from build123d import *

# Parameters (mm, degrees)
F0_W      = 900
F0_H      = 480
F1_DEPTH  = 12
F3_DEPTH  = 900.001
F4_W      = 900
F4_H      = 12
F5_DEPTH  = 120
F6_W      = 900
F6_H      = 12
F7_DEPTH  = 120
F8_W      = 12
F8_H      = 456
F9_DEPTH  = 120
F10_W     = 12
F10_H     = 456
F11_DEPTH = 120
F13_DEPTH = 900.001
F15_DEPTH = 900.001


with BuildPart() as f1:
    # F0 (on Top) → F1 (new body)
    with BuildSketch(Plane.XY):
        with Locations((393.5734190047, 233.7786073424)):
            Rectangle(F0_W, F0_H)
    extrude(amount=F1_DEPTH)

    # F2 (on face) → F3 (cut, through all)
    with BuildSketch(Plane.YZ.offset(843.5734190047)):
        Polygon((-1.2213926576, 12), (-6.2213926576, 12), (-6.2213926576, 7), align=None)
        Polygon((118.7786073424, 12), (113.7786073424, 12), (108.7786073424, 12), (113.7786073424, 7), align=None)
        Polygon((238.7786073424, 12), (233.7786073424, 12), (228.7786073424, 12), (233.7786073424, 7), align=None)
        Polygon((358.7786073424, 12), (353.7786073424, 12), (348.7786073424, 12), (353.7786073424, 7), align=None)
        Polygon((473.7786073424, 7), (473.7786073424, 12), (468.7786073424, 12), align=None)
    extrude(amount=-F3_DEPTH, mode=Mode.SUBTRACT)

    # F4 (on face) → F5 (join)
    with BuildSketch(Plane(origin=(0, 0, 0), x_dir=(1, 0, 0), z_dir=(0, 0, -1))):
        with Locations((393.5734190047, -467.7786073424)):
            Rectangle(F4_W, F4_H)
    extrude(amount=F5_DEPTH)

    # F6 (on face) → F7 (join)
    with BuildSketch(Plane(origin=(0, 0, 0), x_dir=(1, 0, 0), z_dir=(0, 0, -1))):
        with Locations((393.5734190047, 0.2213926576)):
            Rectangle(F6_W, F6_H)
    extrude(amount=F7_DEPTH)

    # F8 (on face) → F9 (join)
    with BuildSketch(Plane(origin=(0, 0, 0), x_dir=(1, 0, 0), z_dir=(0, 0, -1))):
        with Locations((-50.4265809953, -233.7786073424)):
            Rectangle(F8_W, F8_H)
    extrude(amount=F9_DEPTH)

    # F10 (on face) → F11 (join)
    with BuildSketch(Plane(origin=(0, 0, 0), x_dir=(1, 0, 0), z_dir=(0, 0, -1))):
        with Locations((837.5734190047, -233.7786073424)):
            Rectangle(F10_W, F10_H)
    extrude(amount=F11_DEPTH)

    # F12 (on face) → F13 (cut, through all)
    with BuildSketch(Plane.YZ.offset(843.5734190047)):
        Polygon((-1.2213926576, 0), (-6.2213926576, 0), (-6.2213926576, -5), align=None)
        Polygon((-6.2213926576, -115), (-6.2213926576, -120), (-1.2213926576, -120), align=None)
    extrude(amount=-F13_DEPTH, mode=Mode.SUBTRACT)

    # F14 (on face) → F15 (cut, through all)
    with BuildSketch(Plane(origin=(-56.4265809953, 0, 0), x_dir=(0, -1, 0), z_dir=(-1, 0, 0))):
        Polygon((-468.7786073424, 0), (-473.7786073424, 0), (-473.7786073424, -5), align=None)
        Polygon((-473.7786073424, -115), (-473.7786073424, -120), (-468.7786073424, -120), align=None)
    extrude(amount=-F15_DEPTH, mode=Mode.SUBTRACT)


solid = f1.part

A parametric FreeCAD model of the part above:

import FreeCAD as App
import Part
import Sketcher

V = App.Vector
Q = App.Units.Quantity

doc = App.newDocument("Part")
body = doc.addObject("PartDesign::Body", "Body")

sketch1 = doc.addObject("Sketcher::SketchObject", "Sketch")
body.addObject(sketch1)
sketch1.AttachmentSupport = (doc.XY_Plane, [""])
sketch1.MapMode = "FlatFace"
sketch1.addGeometry(Part.LineSegment(V(-56, 474, 0), V(-56, -6, 0)), False)
sketch1.addGeometry(Part.LineSegment(V(-56, -6, 0), V(844, -6, 0)), False)
sketch1.addGeometry(Part.LineSegment(V(844, -6, 0), V(844, 474, 0)), False)
sketch1.addGeometry(Part.LineSegment(V(844, 474, 0), V(-56, 474, 0)), False)
sketch1.addConstraint(Sketcher.Constraint("Coincident", 0, 2, 1, 1))
sketch1.addConstraint(Sketcher.Constraint("Coincident", 1, 2, 2, 1))
sketch1.addConstraint(Sketcher.Constraint("Coincident", 2, 2, 3, 1))
sketch1.addConstraint(Sketcher.Constraint("Coincident", 3, 2, 0, 1))
sketch1.addConstraint(Sketcher.Constraint("Vertical", 0))
sketch1.addConstraint(Sketcher.Constraint("Horizontal", 1))
sketch1.addConstraint(Sketcher.Constraint("Vertical", 2))
sketch1.addConstraint(Sketcher.Constraint("Horizontal", 3))
sketch1.addConstraint(Sketcher.Constraint("DistanceX", 1, 1, 1, 2, Q("900 mm")))
sketch1.addConstraint(Sketcher.Constraint("DistanceY", 0, 2, 0, 1, Q("480 mm")))
sketch1.addConstraint(Sketcher.Constraint("DistanceX", 0, 2, -1, 1, Q("56.426581 mm")))
sketch1.addConstraint(Sketcher.Constraint("DistanceY", 0, 2, -1, 1, Q("6.221393 mm")))
pad1 = doc.addObject("PartDesign::Pad", "Pad")
body.addObject(pad1)
pad1.Profile = sketch1
pad1.Length = 12

sketch2 = doc.addObject("Sketcher::SketchObject", "Sketch001")
body.addObject(sketch2)
sketch2.AttachmentSupport = (doc.YZ_Plane, [""])
sketch2.MapMode = "FlatFace"
sketch2.AttachmentOffset = App.Placement(V(0, 0, 843.573419), App.Rotation())
sketch2.addGeometry(Part.LineSegment(V(-1, 12, 0), V(-6, 12, 0)), False)
sketch2.addGeometry(Part.LineSegment(V(-6, 12, 0), V(-6, 7, 0)), False)
sketch2.addGeometry(Part.LineSegment(V(-6, 7, 0), V(-1, 12, 0)), False)
sketch2.addGeometry(Part.LineSegment(V(119, 12, 0), V(109, 12, 0)), False)
sketch2.addGeometry(Part.LineSegment(V(109, 12, 0), V(114, 7, 0)), False)
sketch2.addGeometry(Part.LineSegment(V(114, 7, 0), V(119, 12, 0)), False)
sketch2.addGeometry(Part.LineSegment(V(239, 12, 0), V(229, 12, 0)), False)
sketch2.addGeometry(Part.LineSegment(V(229, 12, 0), V(234, 7, 0)), False)
sketch2.addGeometry(Part.LineSegment(V(234, 7, 0), V(239, 12, 0)), False)
sketch2.addGeometry(Part.LineSegment(V(359, 12, 0), V(349, 12, 0)), False)
sketch2.addGeometry(Part.LineSegment(V(349, 12, 0), V(354, 7, 0)), False)
sketch2.addGeometry(Part.LineSegment(V(354, 7, 0), V(359, 12, 0)), False)
sketch2.addGeometry(Part.LineSegment(V(474, 7, 0), V(474, 12, 0)), False)
sketch2.addGeometry(Part.LineSegment(V(474, 12, 0), V(469, 12, 0)), False)
sketch2.addGeometry(Part.LineSegment(V(469, 12, 0), V(474, 7, 0)), False)
sketch2.addConstraint(Sketcher.Constraint("Coincident", 0, 2, 1, 1))
sketch2.addConstraint(Sketcher.Constraint("Coincident", 1, 2, 2, 1))
sketch2.addConstraint(Sketcher.Constraint("Coincident", 2, 2, 0, 1))
sketch2.addConstraint(Sketcher.Constraint("Coincident", 3, 2, 4, 1))
sketch2.addConstraint(Sketcher.Constraint("Coincident", 4, 2, 5, 1))
sketch2.addConstraint(Sketcher.Constraint("Coincident", 5, 2, 3, 1))
sketch2.addConstraint(Sketcher.Constraint("Coincident", 6, 2, 7, 1))
sketch2.addConstraint(Sketcher.Constraint("Coincident", 7, 2, 8, 1))
sketch2.addConstraint(Sketcher.Constraint("Coincident", 8, 2, 6, 1))
sketch2.addConstraint(Sketcher.Constraint("Coincident", 9, 2, 10, 1))
sketch2.addConstraint(Sketcher.Constraint("Coincident", 10, 2, 11, 1))
sketch2.addConstraint(Sketcher.Constraint("Coincident", 11, 2, 9, 1))
sketch2.addConstraint(Sketcher.Constraint("Coincident", 12, 2, 13, 1))
sketch2.addConstraint(Sketcher.Constraint("Coincident", 13, 2, 14, 1))
sketch2.addConstraint(Sketcher.Constraint("Coincident", 14, 2, 12, 1))
sketch2.addConstraint(Sketcher.Constraint("Horizontal", 0))
sketch2.addConstraint(Sketcher.Constraint("Vertical", 1))
sketch2.addConstraint(Sketcher.Constraint("Horizontal", 3))
sketch2.addConstraint(Sketcher.Constraint("Horizontal", 6))
sketch2.addConstraint(Sketcher.Constraint("Horizontal", 9))
sketch2.addConstraint(Sketcher.Constraint("Vertical", 12))
sketch2.addConstraint(Sketcher.Constraint("Horizontal", 13))
sketch2.addConstraint(Sketcher.Constraint("Perpendicular", 2, 4))
sketch2.addConstraint(Sketcher.Constraint("Perpendicular", 4, 5))
sketch2.addConstraint(Sketcher.Constraint("Perpendicular", 5, 7))
sketch2.addConstraint(Sketcher.Constraint("Perpendicular", 7, 8))
sketch2.addConstraint(Sketcher.Constraint("Perpendicular", 8, 10))
sketch2.addConstraint(Sketcher.Constraint("Perpendicular", 10, 11))
sketch2.addConstraint(Sketcher.Constraint("Perpendicular", 11, 14))
sketch2.addConstraint(Sketcher.Constraint("Horizontal", 2, 2, 3, 2))
sketch2.addConstraint(Sketcher.Constraint("Horizontal", 1, 2, 4, 2))
sketch2.addConstraint(Sketcher.Constraint("Horizontal", 5, 2, 6, 2))
sketch2.addConstraint(Sketcher.Constraint("Horizontal", 4, 2, 7, 2))
sketch2.addConstraint(Sketcher.Constraint("Horizontal", 8, 2, 9, 2))
sketch2.addConstraint(Sketcher.Constraint("Horizontal", 7, 2, 10, 2))
sketch2.addConstraint(Sketcher.Constraint("Horizontal", 11, 2, 12, 2))
sketch2.addConstraint(Sketcher.Constraint("Horizontal", 10, 2, 14, 2))
sketch2.addConstraint(Sketcher.Constraint("Equal", 0, 13))
sketch2.addConstraint(Sketcher.Constraint("DistanceX", 0, 2, 0, 1, Q("5 mm")))
sketch2.addConstraint(Sketcher.Constraint("DistanceY", -1, 1, 0, 2, Q("12 mm")))
sketch2.addConstraint(Sketcher.Constraint("DistanceX", 2, 2, 3, 2, Q("110 mm")))
sketch2.addConstraint(Sketcher.Constraint("DistanceX", 5, 2, 6, 2, Q("110 mm")))
sketch2.addConstraint(Sketcher.Constraint("DistanceX", 8, 2, 9, 2, Q("110 mm")))
sketch2.addConstraint(Sketcher.Constraint("DistanceX", 11, 2, 12, 2, Q("115 mm")))
sketch2.addConstraint(Sketcher.Constraint("DistanceX", 0, 2, -1, 1, Q("6.221393 mm")))
pocket1 = doc.addObject("PartDesign::Pocket", "Pocket")
body.addObject(pocket1)
pocket1.Profile = sketch2
pocket1.Type = "ThroughAll"

sketch3 = doc.addObject("Sketcher::SketchObject", "Sketch002")
body.addObject(sketch3)
sketch3.AttachmentSupport = (doc.XY_Plane, [""])
sketch3.MapMode = "FlatFace"
sketch3.addGeometry(Part.LineSegment(V(-56, 462, 0), V(-56, 474, 0)), False)
sketch3.addGeometry(Part.LineSegment(V(-56, 474, 0), V(844, 474, 0)), False)
sketch3.addGeometry(Part.LineSegment(V(844, 474, 0), V(844, 462, 0)), False)
sketch3.addGeometry(Part.LineSegment(V(844, 462, 0), V(-56, 462, 0)), False)
sketch3.addConstraint(Sketcher.Constraint("Coincident", 0, 2, 1, 1))
sketch3.addConstraint(Sketcher.Constraint("Coincident", 1, 2, 2, 1))
sketch3.addConstraint(Sketcher.Constraint("Coincident", 2, 2, 3, 1))
sketch3.addConstraint(Sketcher.Constraint("Coincident", 3, 2, 0, 1))
sketch3.addConstraint(Sketcher.Constraint("Vertical", 0))
sketch3.addConstraint(Sketcher.Constraint("Horizontal", 1))
sketch3.addConstraint(Sketcher.Constraint("Vertical", 2))
sketch3.addConstraint(Sketcher.Constraint("Horizontal", 3))
sketch3.addConstraint(Sketcher.Constraint("DistanceX", 1, 1, 1, 2, Q("900 mm")))
sketch3.addConstraint(Sketcher.Constraint("DistanceY", 0, 1, 0, 2, Q("12 mm")))
sketch3.addConstraint(Sketcher.Constraint("DistanceX", 0, 2, -1, 1, Q("56.426581 mm")))
sketch3.addConstraint(Sketcher.Constraint("DistanceY", -1, 1, 0, 2, Q("473.778607 mm")))
pad2 = doc.addObject("PartDesign::Pad", "Pad001")
body.addObject(pad2)
pad2.Profile = sketch3
pad2.Length = 120
pad2.Reversed = True

sketch4 = doc.addObject("Sketcher::SketchObject", "Sketch003")
body.addObject(sketch4)
sketch4.AttachmentSupport = (doc.XY_Plane, [""])
sketch4.MapMode = "FlatFace"
sketch4.addGeometry(Part.LineSegment(V(-56, -6, 0), V(-56, 6, 0)), False)
sketch4.addGeometry(Part.LineSegment(V(-56, 6, 0), V(844, 6, 0)), False)
sketch4.addGeometry(Part.LineSegment(V(844, 6, 0), V(844, -6, 0)), False)
sketch4.addGeometry(Part.LineSegment(V(844, -6, 0), V(-56, -6, 0)), False)
sketch4.addConstraint(Sketcher.Constraint("Coincident", 0, 2, 1, 1))
sketch4.addConstraint(Sketcher.Constraint("Coincident", 1, 2, 2, 1))
sketch4.addConstraint(Sketcher.Constraint("Coincident", 2, 2, 3, 1))
sketch4.addConstraint(Sketcher.Constraint("Coincident", 3, 2, 0, 1))
sketch4.addConstraint(Sketcher.Constraint("Vertical", 0))
sketch4.addConstraint(Sketcher.Constraint("Horizontal", 1))
sketch4.addConstraint(Sketcher.Constraint("Vertical", 2))
sketch4.addConstraint(Sketcher.Constraint("Horizontal", 3))
sketch4.addConstraint(Sketcher.Constraint("DistanceX", 1, 1, 1, 2, Q("900 mm")))
sketch4.addConstraint(Sketcher.Constraint("DistanceY", 0, 1, 0, 2, Q("12 mm")))
sketch4.addConstraint(Sketcher.Constraint("DistanceX", 0, 2, -1, 1, Q("56.426581 mm")))
sketch4.addConstraint(Sketcher.Constraint("DistanceY", -1, 1, 0, 2, Q("5.778607 mm")))
pad3 = doc.addObject("PartDesign::Pad", "Pad002")
body.addObject(pad3)
pad3.Profile = sketch4
pad3.Length = 120
pad3.Reversed = True

sketch5 = doc.addObject("Sketcher::SketchObject", "Sketch004")
body.addObject(sketch5)
sketch5.AttachmentSupport = (doc.XY_Plane, [""])
sketch5.MapMode = "FlatFace"
sketch5.addGeometry(Part.LineSegment(V(-56, 6, 0), V(-56, 462, 0)), False)
sketch5.addGeometry(Part.LineSegment(V(-56, 462, 0), V(-44, 462, 0)), False)
sketch5.addGeometry(Part.LineSegment(V(-44, 462, 0), V(-44, 6, 0)), False)
sketch5.addGeometry(Part.LineSegment(V(-44, 6, 0), V(-56, 6, 0)), False)
sketch5.addConstraint(Sketcher.Constraint("Coincident", 0, 2, 1, 1))
sketch5.addConstraint(Sketcher.Constraint("Coincident", 1, 2, 2, 1))
sketch5.addConstraint(Sketcher.Constraint("Coincident", 2, 2, 3, 1))
sketch5.addConstraint(Sketcher.Constraint("Coincident", 3, 2, 0, 1))
sketch5.addConstraint(Sketcher.Constraint("Vertical", 0))
sketch5.addConstraint(Sketcher.Constraint("Horizontal", 1))
sketch5.addConstraint(Sketcher.Constraint("Vertical", 2))
sketch5.addConstraint(Sketcher.Constraint("Horizontal", 3))
sketch5.addConstraint(Sketcher.Constraint("DistanceX", 1, 1, 1, 2, Q("12 mm")))
sketch5.addConstraint(Sketcher.Constraint("DistanceY", 0, 1, 0, 2, Q("456 mm")))
sketch5.addConstraint(Sketcher.Constraint("DistanceX", 0, 2, -1, 1, Q("56.426581 mm")))
sketch5.addConstraint(Sketcher.Constraint("DistanceY", -1, 1, 0, 2, Q("461.778607 mm")))
pad4 = doc.addObject("PartDesign::Pad", "Pad003")
body.addObject(pad4)
pad4.Profile = sketch5
pad4.Length = 120
pad4.Reversed = True

sketch6 = doc.addObject("Sketcher::SketchObject", "Sketch005")
body.addObject(sketch6)
sketch6.AttachmentSupport = (doc.XY_Plane, [""])
sketch6.MapMode = "FlatFace"
sketch6.addGeometry(Part.LineSegment(V(832, 6, 0), V(832, 462, 0)), False)
sketch6.addGeometry(Part.LineSegment(V(832, 462, 0), V(844, 462, 0)), False)
sketch6.addGeometry(Part.LineSegment(V(844, 462, 0), V(844, 6, 0)), False)
sketch6.addGeometry(Part.LineSegment(V(844, 6, 0), V(832, 6, 0)), False)
sketch6.addConstraint(Sketcher.Constraint("Coincident", 0, 2, 1, 1))
sketch6.addConstraint(Sketcher.Constraint("Coincident", 1, 2, 2, 1))
sketch6.addConstraint(Sketcher.Constraint("Coincident", 2, 2, 3, 1))
sketch6.addConstraint(Sketcher.Constraint("Coincident", 3, 2, 0, 1))
sketch6.addConstraint(Sketcher.Constraint("Vertical", 0))
sketch6.addConstraint(Sketcher.Constraint("Horizontal", 1))
sketch6.addConstraint(Sketcher.Constraint("Vertical", 2))
sketch6.addConstraint(Sketcher.Constraint("Horizontal", 3))
sketch6.addConstraint(Sketcher.Constraint("DistanceX", 1, 1, 1, 2, Q("12 mm")))
sketch6.addConstraint(Sketcher.Constraint("DistanceY", 0, 1, 0, 2, Q("456 mm")))
sketch6.addConstraint(Sketcher.Constraint("DistanceX", -1, 1, 0, 2, Q("831.573419 mm")))
sketch6.addConstraint(Sketcher.Constraint("DistanceY", -1, 1, 0, 2, Q("461.778607 mm")))
pad5 = doc.addObject("PartDesign::Pad", "Pad004")
body.addObject(pad5)
pad5.Profile = sketch6
pad5.Length = 120
pad5.Reversed = True

sketch7 = doc.addObject("Sketcher::SketchObject", "Sketch006")
body.addObject(sketch7)
sketch7.AttachmentSupport = (doc.YZ_Plane, [""])
sketch7.MapMode = "FlatFace"
sketch7.AttachmentOffset = App.Placement(V(0, 0, 843.573419), App.Rotation())
sketch7.addGeometry(Part.LineSegment(V(-1, 0, 0), V(-6, 0, 0)), False)
sketch7.addGeometry(Part.LineSegment(V(-6, 0, 0), V(-6, -5, 0)), False)
sketch7.addGeometry(Part.LineSegment(V(-6, -5, 0), V(-1, 0, 0)), False)
sketch7.addGeometry(Part.LineSegment(V(-6, -115, 0), V(-6, -120, 0)), False)
sketch7.addGeometry(Part.LineSegment(V(-6, -120, 0), V(-1, -120, 0)), False)
sketch7.addGeometry(Part.LineSegment(V(-1, -120, 0), V(-6, -115, 0)), False)
sketch7.addConstraint(Sketcher.Constraint("Coincident", 0, 2, 1, 1))
sketch7.addConstraint(Sketcher.Constraint("Coincident", 1, 2, 2, 1))
sketch7.addConstraint(Sketcher.Constraint("Coincident", 2, 2, 0, 1))
sketch7.addConstraint(Sketcher.Constraint("Coincident", 3, 2, 4, 1))
sketch7.addConstraint(Sketcher.Constraint("Coincident", 4, 2, 5, 1))
sketch7.addConstraint(Sketcher.Constraint("Coincident", 5, 2, 3, 1))
sketch7.addConstraint(Sketcher.Constraint("Horizontal", 0))
sketch7.addConstraint(Sketcher.Constraint("Vertical", 1))
sketch7.addConstraint(Sketcher.Constraint("Vertical", 3))
sketch7.addConstraint(Sketcher.Constraint("Horizontal", 4))
sketch7.addConstraint(Sketcher.Constraint("PointOnObject", 0, 2, -1))
sketch7.addConstraint(Sketcher.Constraint("Perpendicular", 2, 5))
sketch7.addConstraint(Sketcher.Constraint("Vertical", 1, 2, 3, 2))
sketch7.addConstraint(Sketcher.Constraint("Vertical", 2, 2, 4, 2))
sketch7.addConstraint(Sketcher.Constraint("Equal", 4, 1))
sketch7.addConstraint(Sketcher.Constraint("DistanceX", 0, 2, 0, 1, Q("5 mm")))
sketch7.addConstraint(Sketcher.Constraint("DistanceY", 3, 2, -1, 1, Q("120 mm")))
sketch7.addConstraint(Sketcher.Constraint("DistanceX", 0, 2, -1, 1, Q("6.221393 mm")))
pocket2 = doc.addObject("PartDesign::Pocket", "Pocket001")
body.addObject(pocket2)
pocket2.Profile = sketch7
pocket2.Type = "ThroughAll"

sketch8 = doc.addObject("Sketcher::SketchObject", "Sketch007")
body.addObject(sketch8)
sketch8.AttachmentSupport = (doc.YZ_Plane, [""])
sketch8.MapMode = "FlatFace"
sketch8.AttachmentOffset = App.Placement(V(0, 0, -56.426581), App.Rotation())
sketch8.addGeometry(Part.LineSegment(V(469, 0, 0), V(474, 0, 0)), False)
sketch8.addGeometry(Part.LineSegment(V(474, 0, 0), V(474, -5, 0)), False)
sketch8.addGeometry(Part.LineSegment(V(474, -5, 0), V(469, 0, 0)), False)
sketch8.addGeometry(Part.LineSegment(V(474, -115, 0), V(474, -120, 0)), False)
sketch8.addGeometry(Part.LineSegment(V(474, -120, 0), V(469, -120, 0)), False)
sketch8.addGeometry(Part.LineSegment(V(469, -120, 0), V(474, -115, 0)), False)
sketch8.addConstraint(Sketcher.Constraint("Coincident", 0, 2, 1, 1))
sketch8.addConstraint(Sketcher.Constraint("Coincident", 1, 2, 2, 1))
sketch8.addConstraint(Sketcher.Constraint("Coincident", 2, 2, 0, 1))
sketch8.addConstraint(Sketcher.Constraint("Coincident", 3, 2, 4, 1))
sketch8.addConstraint(Sketcher.Constraint("Coincident", 4, 2, 5, 1))
sketch8.addConstraint(Sketcher.Constraint("Coincident", 5, 2, 3, 1))
sketch8.addConstraint(Sketcher.Constraint("Horizontal", 0))
sketch8.addConstraint(Sketcher.Constraint("Vertical", 1))
sketch8.addConstraint(Sketcher.Constraint("Vertical", 3))
sketch8.addConstraint(Sketcher.Constraint("Horizontal", 4))
sketch8.addConstraint(Sketcher.Constraint("PointOnObject", 0, 2, -1))
sketch8.addConstraint(Sketcher.Constraint("Perpendicular", 2, 5))
sketch8.addConstraint(Sketcher.Constraint("Vertical", 1, 2, 3, 2))
sketch8.addConstraint(Sketcher.Constraint("Vertical", 2, 2, 4, 2))
sketch8.addConstraint(Sketcher.Constraint("Equal", 4, 1))
sketch8.addConstraint(Sketcher.Constraint("DistanceX", 0, 1, 0, 2, Q("5 mm")))
sketch8.addConstraint(Sketcher.Constraint("DistanceY", 3, 2, -1, 1, Q("120 mm")))
sketch8.addConstraint(Sketcher.Constraint("DistanceX", -1, 1, 0, 2, Q("473.778607 mm")))
pocket3 = doc.addObject("PartDesign::Pocket", "Pocket002")
body.addObject(pocket3)
pocket3.Profile = sketch8
pocket3.Type = "ThroughAll"
pocket3.Reversed = True

doc.recompute()
